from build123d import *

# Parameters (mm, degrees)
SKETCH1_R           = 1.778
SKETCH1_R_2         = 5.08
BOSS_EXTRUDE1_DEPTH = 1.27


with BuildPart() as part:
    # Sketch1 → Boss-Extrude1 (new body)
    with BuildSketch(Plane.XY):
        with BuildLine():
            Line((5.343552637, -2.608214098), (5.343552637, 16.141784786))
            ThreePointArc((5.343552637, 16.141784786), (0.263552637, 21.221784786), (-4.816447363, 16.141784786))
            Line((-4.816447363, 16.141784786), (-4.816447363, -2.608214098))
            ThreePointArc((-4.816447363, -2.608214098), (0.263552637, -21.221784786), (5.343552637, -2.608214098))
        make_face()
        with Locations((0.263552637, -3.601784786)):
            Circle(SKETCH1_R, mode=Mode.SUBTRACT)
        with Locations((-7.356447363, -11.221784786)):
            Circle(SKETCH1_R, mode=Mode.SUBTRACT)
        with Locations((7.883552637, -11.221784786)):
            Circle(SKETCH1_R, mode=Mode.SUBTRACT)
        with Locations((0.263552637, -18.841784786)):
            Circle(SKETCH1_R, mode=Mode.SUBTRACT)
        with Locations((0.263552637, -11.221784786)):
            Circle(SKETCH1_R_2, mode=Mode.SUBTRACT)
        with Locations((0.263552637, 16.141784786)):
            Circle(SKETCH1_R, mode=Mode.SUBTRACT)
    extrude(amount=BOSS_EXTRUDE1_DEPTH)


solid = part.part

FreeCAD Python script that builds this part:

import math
import FreeCAD as App
import Part
import Sketcher
from FreeCAD import Vector
Q = App.Units.Quantity

doc = App.newDocument("Part")
params = doc.addObject("Spreadsheet::Sheet", "Params")
for row, (alias, value) in enumerate([
    ("sketch1_diameter", "0.4 in"),
    ("sketch1_diameter2", "0.14 in"),
    ("pad1_length", "0.05 in"),
], start=1):
    params.set(f"A{row}", alias)
    params.set(f"B{row}", "=" + value)
    params.setAlias(f"B{row}", alias)

body = doc.addObject("PartDesign::Body", "Body")

# Sketch on XY plane
sketch1 = body.newObject("Sketcher::SketchObject", "Sketch")
sketch1.AttachmentSupport = (doc.getObject("XY_Plane"), [""])
sketch1.MapMode = "FlatFace"
sketch1.addGeometry([
    Part.LineSegment(Vector(5.3, -2.6, 0), Vector(5.3, 16.1, 0)),  # 0
    Part.ArcOfCircle(Part.Circle(Vector(0.3, 16.1, 0), Vector(0, 0, 1), 5.1), math.radians(0), math.radians(180)),  # 1
    Part.LineSegment(Vector(-4.8, 16.1, 0), Vector(-4.8, -2.6, 0)),  # 2
    Part.ArcOfCircle(Part.Circle(Vector(0.3, -11.2, 0), Vector(0, 0, 1), 10), math.radians(121), math.radians(419)),  # 3
    Part.Circle(Vector(-7.4, -11.2, 0), Vector(0, 0, 1), 1.8),  # 4
    Part.Circle(Vector(0.3, -18.8, 0), Vector(0, 0, 1), 1.8),  # 5
    Part.Circle(Vector(0.3, -11.2, 0), Vector(0, 0, 1), 5.1),  # 6
    Part.Circle(Vector(7.9, -11.2, 0), Vector(0, 0, 1), 1.8),  # 7
    Part.Circle(Vector(0.3, -3.6, 0), Vector(0, 0, 1), 1.8),  # 8
    Part.Circle(Vector(0.3, 16.1, 0), Vector(0, 0, 1), 1.8),  # 9
], False)
sketch1.addConstraint([
    Sketcher.Constraint("Tangent", 0, 2, 1, 1),
    Sketcher.Constraint("Tangent", 1, 2, 2, 1),
    Sketcher.Constraint("Coincident", 2, 2, 3, 1),
    Sketcher.Constraint("Coincident", 3, 2, 0, 1),
    Sketcher.Constraint("Vertical", 0),
    Sketcher.Constraint("Vertical", 2),
    Sketcher.Constraint("Coincident", 6, 3, 3, 3),
    Sketcher.Constraint("Coincident", 9, 3, 1, 3),
    Sketcher.Constraint("Equal", 4, 5),
    Sketcher.Constraint("Equal", 1, 6),
    Sketcher.Constraint("Equal", 5, 7),
    Sketcher.Constraint("Equal", 7, 8),
    Sketcher.Constraint("Equal", 8, 9),
    Sketcher.Constraint("Horizontal", 3, 3, 4, 3),
    Sketcher.Constraint("Horizontal", 6, 3, 7, 3),
    Sketcher.Constraint("Horizontal", 2, 2, 3, 2),
    Sketcher.Constraint("Vertical", 3, 3, 5, 3),
    Sketcher.Constraint("Vertical", 6, 3, 8, 3),
    Sketcher.Constraint("Diameter", 6, Q("0.4 in")),
    Sketcher.Constraint("Diameter", 4, Q("0.14 in")),
    Sketcher.Constraint("DistanceX", 4, 3, 3, 3, Q("0.3 in")),
    Sketcher.Constraint("DistanceY", 5, 3, 3, 3, Q("0.3 in")),
    Sketcher.Constraint("DistanceX", 3, 3, 7, 3, Q("0.3 in")),
    Sketcher.Constraint("DistanceY", 3, 3, 8, 3, Q("0.3 in")),
    Sketcher.Constraint("Radius", 3, Q("10 mm")),
    Sketcher.Constraint("DistanceY", 0, 1, 0, 2, Q("18.749999 mm")),
    Sketcher.Constraint("DistanceX", -1, 1, 1, 3, Q("0.263553 mm")),
    Sketcher.Constraint("DistanceY", -1, 1, 1, 3, Q("16.141785 mm")),
])
sketch1.setExpression("Constraints[18]", "Params.sketch1_diameter")
sketch1.setExpression("Constraints[19]", "Params.sketch1_diameter2")
pad1 = body.newObject("PartDesign::Pad", "Pad")
pad1.Profile = sketch1
pad1.setExpression("Length", "Params.pad1_length")

doc.recompute()
